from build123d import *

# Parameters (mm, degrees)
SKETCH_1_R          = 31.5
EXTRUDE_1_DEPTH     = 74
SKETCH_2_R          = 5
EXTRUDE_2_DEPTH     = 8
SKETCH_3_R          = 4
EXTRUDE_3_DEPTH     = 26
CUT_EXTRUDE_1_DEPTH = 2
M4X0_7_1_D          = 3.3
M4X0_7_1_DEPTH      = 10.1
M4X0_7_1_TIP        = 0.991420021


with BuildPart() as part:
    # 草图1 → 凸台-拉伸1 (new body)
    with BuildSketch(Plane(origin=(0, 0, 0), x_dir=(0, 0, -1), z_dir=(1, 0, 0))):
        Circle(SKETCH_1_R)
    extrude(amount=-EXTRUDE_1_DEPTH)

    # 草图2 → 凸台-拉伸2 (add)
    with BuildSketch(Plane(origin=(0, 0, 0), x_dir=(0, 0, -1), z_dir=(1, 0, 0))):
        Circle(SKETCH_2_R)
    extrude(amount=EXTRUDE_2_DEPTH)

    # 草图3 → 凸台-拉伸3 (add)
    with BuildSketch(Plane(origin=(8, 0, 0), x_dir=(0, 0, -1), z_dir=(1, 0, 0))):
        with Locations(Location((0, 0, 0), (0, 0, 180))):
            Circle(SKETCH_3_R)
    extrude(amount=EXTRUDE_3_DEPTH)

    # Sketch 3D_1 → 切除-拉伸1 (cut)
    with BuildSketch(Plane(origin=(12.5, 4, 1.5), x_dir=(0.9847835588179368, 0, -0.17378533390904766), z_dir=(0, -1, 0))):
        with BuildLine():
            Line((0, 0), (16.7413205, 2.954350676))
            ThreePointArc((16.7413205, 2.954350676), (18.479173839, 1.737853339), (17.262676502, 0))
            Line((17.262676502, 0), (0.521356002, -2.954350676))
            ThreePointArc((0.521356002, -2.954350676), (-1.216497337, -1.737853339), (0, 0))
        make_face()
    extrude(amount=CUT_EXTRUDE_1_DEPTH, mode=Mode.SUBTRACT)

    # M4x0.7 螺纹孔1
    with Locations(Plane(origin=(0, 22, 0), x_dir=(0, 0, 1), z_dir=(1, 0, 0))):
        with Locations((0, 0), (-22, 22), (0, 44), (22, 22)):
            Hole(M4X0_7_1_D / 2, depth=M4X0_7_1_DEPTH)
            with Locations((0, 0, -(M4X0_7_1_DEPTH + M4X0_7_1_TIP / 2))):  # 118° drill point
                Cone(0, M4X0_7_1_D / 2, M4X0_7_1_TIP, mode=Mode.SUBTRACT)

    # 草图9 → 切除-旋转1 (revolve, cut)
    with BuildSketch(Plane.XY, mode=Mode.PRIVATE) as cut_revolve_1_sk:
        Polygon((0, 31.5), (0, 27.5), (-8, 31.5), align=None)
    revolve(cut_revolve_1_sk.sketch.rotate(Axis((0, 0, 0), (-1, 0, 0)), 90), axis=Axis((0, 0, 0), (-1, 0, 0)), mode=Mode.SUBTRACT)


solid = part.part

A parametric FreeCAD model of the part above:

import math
import FreeCAD as App
import Part
import Sketcher
from FreeCAD import Vector
Q = App.Units.Quantity

doc = App.newDocument("Part")
body = doc.addObject("PartDesign::Body", "Body")

# Sketch on YZ plane
sketch1 = body.newObject("Sketcher::SketchObject", "Sketch")
sketch1.AttachmentSupport = (doc.getObject("YZ_Plane"), [""])
sketch1.MapMode = "FlatFace"
sketch1.addGeometry(Part.Circle(Vector(0, 0, 0), Vector(0, 0, 1), 32), False)
sketch1.addConstraint([
    Sketcher.Constraint("Coincident", 0, 3, -1, 1),
    Sketcher.Constraint("Diameter", 0, Q("63 mm")),
])
pad1 = body.newObject("PartDesign::Pad", "Pad")
pad1.Profile = sketch1
pad1.Length = 74
pad1.Reversed = True

# Sketch on YZ plane
sketch2 = body.newObject("Sketcher::SketchObject", "Sketch001")
sketch2.AttachmentSupport = (doc.getObject("YZ_Plane"), [""])
sketch2.MapMode = "FlatFace"
sketch2.addGeometry(Part.Circle(Vector(0, 0, 0), Vector(0, 0, 1), 5), False)
sketch2.addConstraint([
    Sketcher.Constraint("Coincident", 0, 3, -1, 1),
    Sketcher.Constraint("Diameter", 0, Q("10 mm")),
])
pad2 = body.newObject("PartDesign::Pad", "Pad001")
pad2.Profile = sketch2
pad2.Length = 8

# Sketch on YZ plane
sketch3 = body.newObject("Sketcher::SketchObject", "Sketch002")
sketch3.AttachmentSupport = (doc.getObject("YZ_Plane"), [""])
sketch3.MapMode = "FlatFace"
sketch3.AttachmentOffset = App.Placement(Vector(0, 0, 8), App.Rotation())
sketch3.addGeometry(Part.Circle(Vector(0, 0, 0), Vector(0, 0, 1), 4), False)
sketch3.addConstraint([
    Sketcher.Constraint("Coincident", 0, 3, -1, 1),
    Sketcher.Constraint("Diameter", 0, Q("8 mm")),
])
pad3 = body.newObject("PartDesign::Pad", "Pad002")
pad3.Profile = sketch3
pad3.Length = 26

# Sketch on XZ plane
sketch4 = body.newObject("Sketcher::SketchObject", "Sketch003")
sketch4.AttachmentSupport = (doc.getObject("XZ_Plane"), [""])
sketch4.MapMode = "FlatFace"
sketch4.AttachmentOffset = App.Placement(Vector(0, 0, -4), App.Rotation())
sketch4.addGeometry([
    Part.LineSegment(Vector(29.5, 1.5, 0), Vector(12.5, 1.5, 0)),
    Part.ArcOfCircle(Part.Circle(Vector(12.5, 0, 0), Vector(0, 0, 1), 1.5), math.radians(90), math.radians(270)),
    Part.LineSegment(Vector(12.5, -1.5, 0), Vector(29.5, -1.5, 0)),
    Part.ArcOfCircle(Part.Circle(Vector(29.5, 0, 0), Vector(0, 0, 1), 1.5), math.radians(-90), math.radians(90)),
], False)
sketch4.addConstraint([
    Sketcher.Constraint("Tangent", 0, 2, 1, 1),
    Sketcher.Constraint("Tangent", 1, 2, 2, 1),
    Sketcher.Constraint("Tangent", 2, 2, 3, 1),
    Sketcher.Constraint("Tangent", 3, 2, 0, 1),
    Sketcher.Constraint("Horizontal", 0),
    Sketcher.Constraint("Horizontal", 2),
    Sketcher.Constraint("PointOnObject", 1, 3, -1),
    Sketcher.Constraint("Radius", 1, Q("1.5 mm")),
    Sketcher.Constraint("DistanceX", 0, 2, 0, 1, Q("17 mm")),
    Sketcher.Constraint("DistanceX", -1, 1, 1, 3, Q("12.5 mm")),
])
pocket1 = body.newObject("PartDesign::Pocket", "Pocket")
pocket1.Profile = sketch4
pocket1.Length = 2
pocket1.Reversed = True

# Sketch on YZ plane
sketch5 = body.newObject("Sketcher::SketchObject", "Sketch004")
sketch5.AttachmentSupport = (doc.getObject("YZ_Plane"), [""])
sketch5.MapMode = "FlatFace"
sketch5.addGeometry([
    Part.Circle(Vector(22, 0, 0), Vector(0, 0, 1), 1.6),
    Part.Circle(Vector(0, -22, 0), Vector(0, 0, 1), 1.6),
    Part.Circle(Vector(-22, 0, 0), Vector(0, 0, 1), 1.6),
    Part.Circle(Vector(0, 22, 0), Vector(0, 0, 1), 1.6),
], False)
sketch5.addConstraint([
    Sketcher.Constraint("Equal", 0, 1),
    Sketcher.Constraint("Equal", 1, 2),
    Sketcher.Constraint("Equal", 2, 3),
    Sketcher.Constraint("Symmetric", 0, 3, 2, 3, -1, 1),
    Sketcher.Constraint("Symmetric", 1, 3, 3, 3, -1, 1),
    Sketcher.Constraint("PointOnObject", 0, 3, -1),
    Sketcher.Constraint("PointOnObject", 1, 3, -2),
    Sketcher.Constraint("Diameter", 0, Q("3.3 mm")),
    Sketcher.Constraint("DistanceX", -1, 1, 0, 3, Q("22 mm")),
    Sketcher.Constraint("DistanceY", 1, 3, -1, 1, Q("22 mm")),
])
doc.recompute()
hole = body.newObject("PartDesign::Hole", "Hole")
hole.Profile = sketch5
hole.ThreadType = "None"
hole.Diameter = 3.3
hole.DepthType = "Dimension"
hole.Depth = 10.1
hole.DrillPoint = "Angled"
hole.DrillPointAngle = 118

# Sketch on XY plane
sketch6 = body.newObject("Sketcher::SketchObject", "Sketch005")
sketch6.AttachmentSupport = (doc.getObject("XY_Plane"), [""])
sketch6.MapMode = "FlatFace"
sketch6.addGeometry([
    Part.LineSegment(Vector(0, 27.5, 0), Vector(0, 31.5, 0)),
    Part.LineSegment(Vector(0, 31.5, 0), Vector(-8, 31.5, 0)),
    Part.LineSegment(Vector(-8, 31.5, 0), Vector(0, 27.5, 0)),
], False)
sketch6.addConstraint([
    Sketcher.Constraint("Coincident", 0, 2, 1, 1),
    Sketcher.Constraint("Coincident", 1, 2, 2, 1),
    Sketcher.Constraint("Coincident", 2, 2, 0, 1),
    Sketcher.Constraint("Vertical", 0),
    Sketcher.Constraint("Horizontal", 1),
    Sketcher.Constraint("PointOnObject", 0, 2, -2),
    Sketcher.Constraint("DistanceX", 1, 2, 1, 1, Q("8 mm")),
    Sketcher.Constraint("DistanceY", 0, 1, 0, 2, Q("4 mm")),
    Sketcher.Constraint("DistanceY", -1, 1, 0, 2, Q("31.5 mm")),
])
groove = body.newObject("PartDesign::Groove", "Groove")
groove.Profile = sketch6
groove.ReferenceAxis = (sketch6, ["H_Axis"])
groove.Angle = 360

doc.recompute()
